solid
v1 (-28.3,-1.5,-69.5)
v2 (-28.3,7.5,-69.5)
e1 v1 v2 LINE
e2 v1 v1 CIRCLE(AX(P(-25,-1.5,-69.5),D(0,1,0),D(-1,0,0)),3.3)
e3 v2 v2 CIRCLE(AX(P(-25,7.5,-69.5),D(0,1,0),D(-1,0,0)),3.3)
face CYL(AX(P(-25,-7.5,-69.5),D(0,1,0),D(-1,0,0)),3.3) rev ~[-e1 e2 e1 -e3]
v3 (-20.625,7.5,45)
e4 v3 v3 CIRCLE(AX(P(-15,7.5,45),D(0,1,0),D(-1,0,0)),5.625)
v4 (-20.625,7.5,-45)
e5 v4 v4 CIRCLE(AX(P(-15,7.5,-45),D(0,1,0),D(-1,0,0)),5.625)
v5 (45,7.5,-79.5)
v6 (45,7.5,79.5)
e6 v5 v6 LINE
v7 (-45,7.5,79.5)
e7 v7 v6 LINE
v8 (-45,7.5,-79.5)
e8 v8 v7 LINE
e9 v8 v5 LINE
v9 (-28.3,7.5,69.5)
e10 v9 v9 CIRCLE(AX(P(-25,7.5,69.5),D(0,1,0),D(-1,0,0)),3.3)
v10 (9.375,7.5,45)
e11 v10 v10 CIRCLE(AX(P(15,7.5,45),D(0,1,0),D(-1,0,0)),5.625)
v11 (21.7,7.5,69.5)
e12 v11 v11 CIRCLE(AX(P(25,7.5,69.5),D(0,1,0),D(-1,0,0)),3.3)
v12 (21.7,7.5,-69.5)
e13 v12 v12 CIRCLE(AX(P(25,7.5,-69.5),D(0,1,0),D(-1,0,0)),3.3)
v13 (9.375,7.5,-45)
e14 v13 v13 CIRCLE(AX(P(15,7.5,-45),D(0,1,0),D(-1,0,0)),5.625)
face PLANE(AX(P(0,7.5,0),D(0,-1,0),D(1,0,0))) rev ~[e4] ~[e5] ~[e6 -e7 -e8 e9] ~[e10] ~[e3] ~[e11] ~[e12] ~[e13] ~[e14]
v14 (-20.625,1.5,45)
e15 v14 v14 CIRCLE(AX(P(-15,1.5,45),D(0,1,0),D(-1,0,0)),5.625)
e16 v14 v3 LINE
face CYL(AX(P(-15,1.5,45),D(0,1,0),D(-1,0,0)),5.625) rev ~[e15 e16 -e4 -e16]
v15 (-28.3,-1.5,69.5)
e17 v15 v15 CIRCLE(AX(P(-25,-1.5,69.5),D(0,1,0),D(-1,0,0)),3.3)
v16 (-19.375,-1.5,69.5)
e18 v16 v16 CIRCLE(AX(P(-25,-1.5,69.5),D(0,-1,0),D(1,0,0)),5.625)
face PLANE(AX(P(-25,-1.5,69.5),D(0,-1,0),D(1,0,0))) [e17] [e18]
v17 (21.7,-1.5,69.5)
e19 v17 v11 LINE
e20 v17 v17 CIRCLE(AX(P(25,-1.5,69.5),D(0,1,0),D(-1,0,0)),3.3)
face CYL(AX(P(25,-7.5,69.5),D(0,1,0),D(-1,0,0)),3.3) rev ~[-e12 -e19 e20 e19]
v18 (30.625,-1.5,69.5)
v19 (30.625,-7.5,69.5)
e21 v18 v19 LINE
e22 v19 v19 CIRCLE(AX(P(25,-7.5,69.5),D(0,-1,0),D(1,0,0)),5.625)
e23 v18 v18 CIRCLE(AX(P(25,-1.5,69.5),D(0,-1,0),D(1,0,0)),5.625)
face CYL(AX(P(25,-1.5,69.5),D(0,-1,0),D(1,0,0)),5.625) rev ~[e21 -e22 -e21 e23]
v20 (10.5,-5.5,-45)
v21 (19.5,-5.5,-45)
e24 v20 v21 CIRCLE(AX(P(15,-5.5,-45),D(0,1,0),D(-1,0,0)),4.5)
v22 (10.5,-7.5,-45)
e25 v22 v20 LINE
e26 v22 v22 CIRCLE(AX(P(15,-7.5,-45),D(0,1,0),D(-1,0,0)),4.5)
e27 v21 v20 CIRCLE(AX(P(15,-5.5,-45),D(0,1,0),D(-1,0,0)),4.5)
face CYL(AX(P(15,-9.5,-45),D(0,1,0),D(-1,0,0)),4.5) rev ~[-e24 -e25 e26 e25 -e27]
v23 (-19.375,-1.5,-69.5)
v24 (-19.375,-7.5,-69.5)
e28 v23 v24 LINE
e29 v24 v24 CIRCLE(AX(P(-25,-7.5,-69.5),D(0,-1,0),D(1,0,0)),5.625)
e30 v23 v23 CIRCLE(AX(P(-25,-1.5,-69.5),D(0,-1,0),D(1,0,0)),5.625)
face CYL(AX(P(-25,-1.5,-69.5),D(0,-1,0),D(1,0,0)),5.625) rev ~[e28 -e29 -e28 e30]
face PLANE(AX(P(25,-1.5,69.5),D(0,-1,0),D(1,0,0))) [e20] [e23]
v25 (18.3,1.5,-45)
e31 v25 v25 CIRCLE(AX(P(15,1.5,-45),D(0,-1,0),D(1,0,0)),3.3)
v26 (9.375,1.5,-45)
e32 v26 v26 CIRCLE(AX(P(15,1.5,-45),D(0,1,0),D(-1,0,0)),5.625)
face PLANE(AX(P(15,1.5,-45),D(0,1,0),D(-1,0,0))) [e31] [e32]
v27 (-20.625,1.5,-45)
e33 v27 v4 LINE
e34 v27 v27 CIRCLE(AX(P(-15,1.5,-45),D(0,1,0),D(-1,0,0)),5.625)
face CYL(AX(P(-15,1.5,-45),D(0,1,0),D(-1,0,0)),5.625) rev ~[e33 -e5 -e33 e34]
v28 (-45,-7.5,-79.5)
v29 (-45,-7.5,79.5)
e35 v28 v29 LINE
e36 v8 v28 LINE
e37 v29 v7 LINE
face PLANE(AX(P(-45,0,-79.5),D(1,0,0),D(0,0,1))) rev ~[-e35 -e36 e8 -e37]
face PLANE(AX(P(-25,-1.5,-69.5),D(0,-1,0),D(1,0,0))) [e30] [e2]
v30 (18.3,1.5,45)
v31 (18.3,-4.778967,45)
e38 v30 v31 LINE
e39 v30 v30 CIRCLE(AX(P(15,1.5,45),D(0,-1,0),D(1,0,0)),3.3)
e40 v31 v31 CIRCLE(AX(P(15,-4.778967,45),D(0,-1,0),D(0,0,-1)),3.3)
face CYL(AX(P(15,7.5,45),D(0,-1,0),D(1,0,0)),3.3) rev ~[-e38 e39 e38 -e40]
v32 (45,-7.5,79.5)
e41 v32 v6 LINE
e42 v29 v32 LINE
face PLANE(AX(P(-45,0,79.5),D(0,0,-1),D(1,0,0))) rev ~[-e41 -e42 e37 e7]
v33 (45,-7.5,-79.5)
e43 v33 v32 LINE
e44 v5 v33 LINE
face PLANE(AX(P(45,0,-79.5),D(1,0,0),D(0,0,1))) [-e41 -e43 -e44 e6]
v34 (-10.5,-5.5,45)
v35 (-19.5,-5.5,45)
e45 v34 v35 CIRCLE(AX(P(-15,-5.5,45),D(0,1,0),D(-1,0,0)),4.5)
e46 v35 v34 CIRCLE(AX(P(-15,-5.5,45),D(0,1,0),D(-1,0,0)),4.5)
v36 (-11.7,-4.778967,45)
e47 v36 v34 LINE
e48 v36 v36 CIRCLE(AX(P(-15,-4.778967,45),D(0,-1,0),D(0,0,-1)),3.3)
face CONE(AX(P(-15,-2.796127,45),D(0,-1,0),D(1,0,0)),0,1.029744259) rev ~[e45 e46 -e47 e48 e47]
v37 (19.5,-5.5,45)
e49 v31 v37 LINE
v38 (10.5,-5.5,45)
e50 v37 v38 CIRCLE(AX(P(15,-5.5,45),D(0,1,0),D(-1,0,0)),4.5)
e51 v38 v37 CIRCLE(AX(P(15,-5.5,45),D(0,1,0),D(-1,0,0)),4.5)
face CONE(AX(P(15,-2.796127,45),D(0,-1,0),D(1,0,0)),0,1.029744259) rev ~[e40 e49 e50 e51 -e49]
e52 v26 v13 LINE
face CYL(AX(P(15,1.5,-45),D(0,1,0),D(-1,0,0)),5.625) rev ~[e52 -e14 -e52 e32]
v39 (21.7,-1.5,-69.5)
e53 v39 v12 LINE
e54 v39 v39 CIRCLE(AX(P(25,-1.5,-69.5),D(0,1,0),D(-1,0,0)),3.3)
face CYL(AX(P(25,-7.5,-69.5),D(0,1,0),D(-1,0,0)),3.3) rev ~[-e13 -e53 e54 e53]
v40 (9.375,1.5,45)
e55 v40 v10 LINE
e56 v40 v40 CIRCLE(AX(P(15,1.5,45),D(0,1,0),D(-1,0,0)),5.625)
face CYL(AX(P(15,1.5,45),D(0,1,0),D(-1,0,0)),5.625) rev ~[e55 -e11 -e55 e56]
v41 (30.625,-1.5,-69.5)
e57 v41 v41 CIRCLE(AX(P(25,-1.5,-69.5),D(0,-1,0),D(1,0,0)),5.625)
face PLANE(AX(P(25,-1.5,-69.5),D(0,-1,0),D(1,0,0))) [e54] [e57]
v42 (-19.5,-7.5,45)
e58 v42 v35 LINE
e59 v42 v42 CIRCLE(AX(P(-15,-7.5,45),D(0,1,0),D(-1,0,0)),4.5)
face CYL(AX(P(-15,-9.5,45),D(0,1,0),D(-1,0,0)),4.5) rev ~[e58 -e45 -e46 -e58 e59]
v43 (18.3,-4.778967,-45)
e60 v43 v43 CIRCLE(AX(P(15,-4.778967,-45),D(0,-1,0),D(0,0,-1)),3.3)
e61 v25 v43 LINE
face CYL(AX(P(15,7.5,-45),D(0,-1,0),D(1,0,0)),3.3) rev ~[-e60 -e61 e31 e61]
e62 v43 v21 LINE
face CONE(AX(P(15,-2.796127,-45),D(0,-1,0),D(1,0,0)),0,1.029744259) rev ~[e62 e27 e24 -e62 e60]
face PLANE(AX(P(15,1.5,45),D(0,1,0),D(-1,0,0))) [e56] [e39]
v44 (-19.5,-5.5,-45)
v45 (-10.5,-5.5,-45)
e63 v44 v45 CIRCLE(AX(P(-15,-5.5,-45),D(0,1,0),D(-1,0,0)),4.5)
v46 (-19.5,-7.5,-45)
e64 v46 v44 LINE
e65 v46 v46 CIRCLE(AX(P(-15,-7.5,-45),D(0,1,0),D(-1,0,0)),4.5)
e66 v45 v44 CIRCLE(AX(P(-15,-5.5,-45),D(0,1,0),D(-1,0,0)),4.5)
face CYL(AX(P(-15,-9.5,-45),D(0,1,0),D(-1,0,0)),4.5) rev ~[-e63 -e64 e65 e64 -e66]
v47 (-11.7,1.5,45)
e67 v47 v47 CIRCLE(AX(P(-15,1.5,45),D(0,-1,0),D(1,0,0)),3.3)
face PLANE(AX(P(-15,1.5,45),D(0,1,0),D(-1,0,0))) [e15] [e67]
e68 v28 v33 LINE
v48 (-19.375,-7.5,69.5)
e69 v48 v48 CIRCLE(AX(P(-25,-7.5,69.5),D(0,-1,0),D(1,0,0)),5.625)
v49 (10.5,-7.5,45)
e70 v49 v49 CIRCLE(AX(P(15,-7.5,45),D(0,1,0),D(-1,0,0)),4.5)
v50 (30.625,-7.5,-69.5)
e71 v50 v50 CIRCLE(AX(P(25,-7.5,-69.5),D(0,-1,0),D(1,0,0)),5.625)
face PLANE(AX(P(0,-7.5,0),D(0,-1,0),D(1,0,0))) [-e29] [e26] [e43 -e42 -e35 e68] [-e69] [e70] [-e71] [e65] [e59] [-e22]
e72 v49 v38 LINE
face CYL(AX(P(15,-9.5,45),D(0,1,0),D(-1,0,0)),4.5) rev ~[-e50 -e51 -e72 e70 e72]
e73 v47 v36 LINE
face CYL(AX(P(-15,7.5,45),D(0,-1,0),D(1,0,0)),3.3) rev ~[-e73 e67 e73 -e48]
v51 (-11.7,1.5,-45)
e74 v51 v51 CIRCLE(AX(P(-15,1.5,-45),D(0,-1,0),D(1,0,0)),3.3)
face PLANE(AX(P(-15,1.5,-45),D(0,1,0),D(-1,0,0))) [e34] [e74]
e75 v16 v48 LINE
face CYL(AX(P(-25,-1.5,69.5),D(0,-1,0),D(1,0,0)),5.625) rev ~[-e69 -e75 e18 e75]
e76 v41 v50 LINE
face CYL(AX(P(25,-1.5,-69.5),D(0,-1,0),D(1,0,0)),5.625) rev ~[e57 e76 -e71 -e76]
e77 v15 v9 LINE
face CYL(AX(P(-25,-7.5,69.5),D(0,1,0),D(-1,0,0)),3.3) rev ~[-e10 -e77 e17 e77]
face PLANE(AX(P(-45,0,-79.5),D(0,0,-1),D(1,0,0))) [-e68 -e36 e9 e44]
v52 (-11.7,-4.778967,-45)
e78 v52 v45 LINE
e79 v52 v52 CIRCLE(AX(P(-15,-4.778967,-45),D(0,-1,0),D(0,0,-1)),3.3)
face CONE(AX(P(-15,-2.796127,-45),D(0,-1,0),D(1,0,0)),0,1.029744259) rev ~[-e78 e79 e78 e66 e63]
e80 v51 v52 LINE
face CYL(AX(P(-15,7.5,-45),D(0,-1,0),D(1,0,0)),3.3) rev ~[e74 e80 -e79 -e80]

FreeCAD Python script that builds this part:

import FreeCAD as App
import Part
import Sketcher

V = App.Vector
Q = App.Units.Quantity

doc = App.newDocument("Part")
body = doc.addObject("PartDesign::Body", "Body")

# Sketch on XZ plane
sketch1 = body.newObject("Sketcher::SketchObject", "Sketch")
sketch1.AttachmentSupport = (doc.getObject("XZ_Plane"), [""])
sketch1.MapMode = "FlatFace"
sketch1.addGeometry([
    Part.LineSegment(V(-45, 80, 0), V(-45, -80, 0)),
    Part.LineSegment(V(-45, -80, 0), V(45, -80, 0)),
    Part.LineSegment(V(45, -80, 0), V(45, 80, 0)),
    Part.LineSegment(V(45, 80, 0), V(-45, 80, 0)),
], False)
sketch1.addConstraint([
    Sketcher.Constraint("Coincident", 0, 2, 1, 1),
    Sketcher.Constraint("Coincident", 1, 2, 2, 1),
    Sketcher.Constraint("Coincident", 2, 2, 3, 1),
    Sketcher.Constraint("Coincident", 3, 2, 0, 1),
    Sketcher.Constraint("Vertical", 0),
    Sketcher.Constraint("Horizontal", 1),
    Sketcher.Constraint("Vertical", 2),
    Sketcher.Constraint("Horizontal", 3),
    Sketcher.Constraint("Symmetric", 0, 2, 2, 2, -1, 1),
    Sketcher.Constraint("DistanceX", 1, 1, 1, 2, Q("90 mm")),
    Sketcher.Constraint("DistanceY", 0, 2, 0, 1, Q("159 mm")),
])
pad1 = body.newObject("PartDesign::Pad", "Pad")
pad1.Profile = sketch1
pad1.Length = 15
pad1.Midplane = True

# Sketch on XZ plane
sketch2 = body.newObject("Sketcher::SketchObject", "Sketch001")
sketch2.AttachmentSupport = (doc.getObject("XZ_Plane"), [""])
sketch2.MapMode = "FlatFace"
sketch2.AttachmentOffset = App.Placement(V(0, 0, 7.5), App.Rotation())
sketch2.addGeometry([
    Part.Circle(V(-25, 69.5, 0), V(0, 0, 1), 3.3),
    Part.Circle(V(25, 69.5, 0), V(0, 0, 1), 3.3),
    Part.Circle(V(-25, -69.5, 0), V(0, 0, 1), 3.3),
    Part.Circle(V(25, -69.5, 0), V(0, 0, 1), 3.3),
], False)
sketch2.addConstraint([
    Sketcher.Constraint("Equal", 0, 1),
    Sketcher.Constraint("Equal", 1, 2),
    Sketcher.Constraint("Equal", 2, 3),
    Sketcher.Constraint("Symmetric", 1, 3, 2, 3, -1, 1),
    Sketcher.Constraint("Symmetric", 0, 3, 3, 3, -1, 1),
    Sketcher.Constraint("Symmetric", 0, 3, 1, 3, -2),
    Sketcher.Constraint("Diameter", 0, Q("6.6 mm")),
    Sketcher.Constraint("DistanceX", 0, 3, -1, 1, Q("25 mm")),
    Sketcher.Constraint("DistanceY", 2, 3, 0, 3, Q("139 mm")),
])
doc.recompute()
hole = body.newObject("PartDesign::Hole", "Hole")
hole.Profile = sketch2
hole.ThreadType = "None"
hole.Diameter = 6.6
hole.DepthType = "ThroughAll"
hole.HoleCutType = "Counterbore"
hole.HoleCutDiameter = 11.25
hole.HoleCutDepth = 6

# Sketch on XZ plane
sketch3 = body.newObject("Sketcher::SketchObject", "Sketch002")
sketch3.AttachmentSupport = (doc.getObject("XZ_Plane"), [""])
sketch3.MapMode = "FlatFace"
sketch3.AttachmentOffset = App.Placement(V(0, 0, -7.5), App.Rotation())
sketch3.addGeometry([
    Part.Circle(V(15, 45, 0), V(0, 0, 1), 3.3),
    Part.Circle(V(-15, 45, 0), V(0, 0, 1), 3.3),
    Part.Circle(V(-15, -45, 0), V(0, 0, 1), 3.3),
    Part.Circle(V(15, -45, 0), V(0, 0, 1), 3.3),
], False)
sketch3.addConstraint([
    Sketcher.Constraint("Equal", 0, 1),
    Sketcher.Constraint("Equal", 1, 2),
    Sketcher.Constraint("Equal", 2, 3),
    Sketcher.Constraint("Symmetric", 0, 3, 2, 3, -1, 1),
    Sketcher.Constraint("Symmetric", 1, 3, 3, 3, -1, 1),
    Sketcher.Constraint("Symmetric", 0, 3, 1, 3, -2),
    Sketcher.Constraint("Diameter", 0, Q("6.6 mm")),
    Sketcher.Constraint("DistanceX", -1, 1, 0, 3, Q("15 mm")),
    Sketcher.Constraint("DistanceY", -1, 1, 0, 3, Q("45 mm")),
])
doc.recompute()
hole2 = body.newObject("PartDesign::Hole", "Hole001")
hole2.Profile = sketch3
hole2.ThreadType = "None"
hole2.Diameter = 6.6
hole2.DepthType = "ThroughAll"
hole2.HoleCutType = "Counterbore"
hole2.HoleCutDiameter = 11.25
hole2.HoleCutDepth = 6
hole2.Reversed = True

# Sketch on XZ plane
sketch4 = body.newObject("Sketcher::SketchObject", "Sketch003")
sketch4.AttachmentSupport = (doc.getObject("XZ_Plane"), [""])
sketch4.MapMode = "FlatFace"
sketch4.AttachmentOffset = App.Placement(V(0, 0, 7.5), App.Rotation())
sketch4.addGeometry([
    Part.Circle(V(-15, 45, 0), V(0, 0, 1), 4.5),
    Part.Circle(V(15, 45, 0), V(0, 0, 1), 4.5),
    Part.Circle(V(-15, -45, 0), V(0, 0, 1), 4.5),
    Part.Circle(V(15, -45, 0), V(0, 0, 1), 4.5),
], False)
sketch4.addConstraint([
    Sketcher.Constraint("Equal", 0, 1),
    Sketcher.Constraint("Equal", 1, 2),
    Sketcher.Constraint("Equal", 2, 3),
    Sketcher.Constraint("Symmetric", 1, 3, 2, 3, -1, 1),
    Sketcher.Constraint("Symmetric", 0, 3, 3, 3, -1, 1),
    Sketcher.Constraint("Symmetric", 0, 3, 1, 3, -2),
    Sketcher.Constraint("Diameter", 0, Q("9 mm")),
    Sketcher.Constraint("DistanceX", 0, 3, -1, 1, Q("15 mm")),
    Sketcher.Constraint("DistanceY", -1, 1, 0, 3, Q("45 mm")),
])
doc.recompute()
hole3 = body.newObject("PartDesign::Hole", "Hole002")
hole3.Profile = sketch4
hole3.ThreadType = "None"
hole3.Diameter = 9
hole3.DepthType = "Dimension"
hole3.Depth = 2
hole3.DrillPoint = "Angled"
hole3.DrillPointAngle = 118

doc.recompute()
